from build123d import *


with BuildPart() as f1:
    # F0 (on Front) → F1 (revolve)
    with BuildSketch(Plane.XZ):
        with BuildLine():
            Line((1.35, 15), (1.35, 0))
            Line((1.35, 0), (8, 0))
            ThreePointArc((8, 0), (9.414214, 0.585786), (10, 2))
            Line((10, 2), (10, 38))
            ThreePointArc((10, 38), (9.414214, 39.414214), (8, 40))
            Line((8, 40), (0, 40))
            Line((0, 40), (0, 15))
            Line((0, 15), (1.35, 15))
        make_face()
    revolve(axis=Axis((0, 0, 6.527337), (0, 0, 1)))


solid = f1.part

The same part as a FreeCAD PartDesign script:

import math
import FreeCAD as App
import Part
import Sketcher

V = App.Vector

doc = App.newDocument("Part")
body = doc.addObject("PartDesign::Body", "Body")

sketch1 = body.newObject("Sketcher::SketchObject", "Sketch")
sketch1.AttachmentSupport = (doc.getObject("XZ_Plane"), [""])
sketch1.MapMode = "FlatFace"
sketch1.addGeometry(Part.LineSegment(V(1.4, 15, 0), V(1.4, 0, 0)), False)
sketch1.addGeometry(Part.LineSegment(V(1.4, 0, 0), V(8, 0, 0)), False)
sketch1.addGeometry(Part.ArcOfCircle(Part.Circle(V(8, 2, 0), V(0, 0, 1), 2), math.radians(-90), math.radians(0)), False)
sketch1.addGeometry(Part.LineSegment(V(10, 2, 0), V(10, 38, 0)), False)
sketch1.addGeometry(Part.ArcOfCircle(Part.Circle(V(8, 38, 0), V(0, 0, 1), 2), math.radians(0), math.radians(90)), False)
sketch1.addGeometry(Part.LineSegment(V(8, 40, 0), V(0, 40, 0)), False)
sketch1.addGeometry(Part.LineSegment(V(0, 40, 0), V(0, 15, 0)), False)
sketch1.addGeometry(Part.LineSegment(V(0, 15, 0), V(1.4, 15, 0)), False)
sketch1.addConstraint(Sketcher.Constraint("Coincident", 0, 2, 1, 1))
sketch1.addConstraint(Sketcher.Constraint("Tangent", 1, 2, 2, 1))
sketch1.addConstraint(Sketcher.Constraint("Tangent", 2, 2, 3, 1))
sketch1.addConstraint(Sketcher.Constraint("Tangent", 3, 2, 4, 1))
sketch1.addConstraint(Sketcher.Constraint("Tangent", 4, 2, 5, 1))
sketch1.addConstraint(Sketcher.Constraint("Coincident", 5, 2, 6, 1))
sketch1.addConstraint(Sketcher.Constraint("Coincident", 6, 2, 7, 1))
sketch1.addConstraint(Sketcher.Constraint("Coincident", 7, 2, 0, 1))
sketch1.addConstraint(Sketcher.Constraint("Vertical", 0))
sketch1.addConstraint(Sketcher.Constraint("Horizontal", 1))
sketch1.addConstraint(Sketcher.Constraint("Vertical", 3))
sketch1.addConstraint(Sketcher.Constraint("Horizontal", 5))
sketch1.addConstraint(Sketcher.Constraint("Vertical", 6))
sketch1.addConstraint(Sketcher.Constraint("Horizontal", 7))
sketch1.addConstraint(Sketcher.Constraint("Equal", 2, 4))
sketch1.addConstraint(Sketcher.Constraint("PointOnObject", 0, 2, -1))
sketch1.addConstraint(Sketcher.Constraint("PointOnObject", 5, 2, -2))
sketch1.addConstraint(Sketcher.Constraint("Radius", 2, 1.999999))
sketch1.addConstraint(Sketcher.Constraint("DistanceX", 5, 2, 5, 1, 8.0))
sketch1.addConstraint(Sketcher.Constraint("DistanceY", 0, 2, 0, 1, 15.0))
sketch1.addConstraint(Sketcher.Constraint("DistanceY", 3, 1, 3, 2, 36.0))
sketch1.addConstraint(Sketcher.Constraint("DistanceX", 1, 1, 1, 2, 6.65))
revolution = body.newObject("PartDesign::Revolution", "Revolution")
revolution.Profile = sketch1
revolution.ReferenceAxis = (sketch1, ["V_Axis"])
revolution.Angle = 360

doc.recompute()
